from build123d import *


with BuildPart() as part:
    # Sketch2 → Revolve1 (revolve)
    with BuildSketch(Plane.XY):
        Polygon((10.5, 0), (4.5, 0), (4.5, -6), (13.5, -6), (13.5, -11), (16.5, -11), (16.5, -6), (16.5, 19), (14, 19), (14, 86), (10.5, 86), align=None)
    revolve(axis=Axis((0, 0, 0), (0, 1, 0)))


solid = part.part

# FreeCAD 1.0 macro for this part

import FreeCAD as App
import Part
import Sketcher

V = App.Vector
Q = App.Units.Quantity


def add_polygon(sketch, points):
    """Adds a closed chain of lines whose ends are joined by coincident constraints."""
    first, n = sketch.GeometryCount, len(points)
    for a, b in zip(points, points[1:] + points[:1]):
        sketch.addGeometry(Part.LineSegment(App.Vector(*a, 0), App.Vector(*b, 0)), False)
    for i in range(n):
        sketch.addConstraint(Sketcher.Constraint("Coincident", first + i, 2, first + (i + 1) % n, 1))

doc = App.newDocument("Part")
body = doc.addObject("PartDesign::Body", "Body")

# Sketch on XY plane
sketch1 = body.newObject("Sketcher::SketchObject", "Sketch")
sketch1.AttachmentSupport = (doc.getObject("XY_Plane"), [""])
sketch1.MapMode = "FlatFace"
add_polygon(sketch1, [(10.5, 0), (4.5, 0), (4.5, -6), (13.5, -6), (13.5, -11), (16.5, -11), (16.5, 19), (14, 19), (14, 86), (10.5, 86)])  # lines 0-9
sketch1.addConstraint([
    Sketcher.Constraint("Horizontal", 0),
    Sketcher.Constraint("Vertical", 1),
    Sketcher.Constraint("Horizontal", 2),
    Sketcher.Constraint("Vertical", 3),
    Sketcher.Constraint("Horizontal", 4),
    Sketcher.Constraint("Vertical", 5),
    Sketcher.Constraint("Horizontal", 6),
    Sketcher.Constraint("Vertical", 7),
    Sketcher.Constraint("Horizontal", 8),
    Sketcher.Constraint("Vertical", 9),
    Sketcher.Constraint("PointOnObject", 0, 2, -1),
    Sketcher.Constraint("Equal", 0, 1),
    Sketcher.Constraint("DistanceX", 0, 2, 0, 1, Q("6 mm")),
    Sketcher.Constraint("DistanceX", 2, 1, 2, 2, Q("9 mm")),
    Sketcher.Constraint("DistanceX", 4, 1, 4, 2, Q("3 mm")),
    Sketcher.Constraint("DistanceY", 3, 2, 3, 1, Q("5 mm")),
    Sketcher.Constraint("DistanceY", 5, 1, 5, 2, Q("30 mm")),
    Sketcher.Constraint("DistanceY", 7, 1, 7, 2, Q("67 mm")),
    Sketcher.Constraint("DistanceX", 6, 2, 6, 1, Q("2.5 mm")),
    Sketcher.Constraint("DistanceX", -1, 1, 6, 2, Q("14 mm")),
])
revolution = body.newObject("PartDesign::Revolution", "Revolution")
revolution.Profile = sketch1
revolution.ReferenceAxis = (sketch1, ["V_Axis"])
revolution.Angle = 360

doc.recompute()
